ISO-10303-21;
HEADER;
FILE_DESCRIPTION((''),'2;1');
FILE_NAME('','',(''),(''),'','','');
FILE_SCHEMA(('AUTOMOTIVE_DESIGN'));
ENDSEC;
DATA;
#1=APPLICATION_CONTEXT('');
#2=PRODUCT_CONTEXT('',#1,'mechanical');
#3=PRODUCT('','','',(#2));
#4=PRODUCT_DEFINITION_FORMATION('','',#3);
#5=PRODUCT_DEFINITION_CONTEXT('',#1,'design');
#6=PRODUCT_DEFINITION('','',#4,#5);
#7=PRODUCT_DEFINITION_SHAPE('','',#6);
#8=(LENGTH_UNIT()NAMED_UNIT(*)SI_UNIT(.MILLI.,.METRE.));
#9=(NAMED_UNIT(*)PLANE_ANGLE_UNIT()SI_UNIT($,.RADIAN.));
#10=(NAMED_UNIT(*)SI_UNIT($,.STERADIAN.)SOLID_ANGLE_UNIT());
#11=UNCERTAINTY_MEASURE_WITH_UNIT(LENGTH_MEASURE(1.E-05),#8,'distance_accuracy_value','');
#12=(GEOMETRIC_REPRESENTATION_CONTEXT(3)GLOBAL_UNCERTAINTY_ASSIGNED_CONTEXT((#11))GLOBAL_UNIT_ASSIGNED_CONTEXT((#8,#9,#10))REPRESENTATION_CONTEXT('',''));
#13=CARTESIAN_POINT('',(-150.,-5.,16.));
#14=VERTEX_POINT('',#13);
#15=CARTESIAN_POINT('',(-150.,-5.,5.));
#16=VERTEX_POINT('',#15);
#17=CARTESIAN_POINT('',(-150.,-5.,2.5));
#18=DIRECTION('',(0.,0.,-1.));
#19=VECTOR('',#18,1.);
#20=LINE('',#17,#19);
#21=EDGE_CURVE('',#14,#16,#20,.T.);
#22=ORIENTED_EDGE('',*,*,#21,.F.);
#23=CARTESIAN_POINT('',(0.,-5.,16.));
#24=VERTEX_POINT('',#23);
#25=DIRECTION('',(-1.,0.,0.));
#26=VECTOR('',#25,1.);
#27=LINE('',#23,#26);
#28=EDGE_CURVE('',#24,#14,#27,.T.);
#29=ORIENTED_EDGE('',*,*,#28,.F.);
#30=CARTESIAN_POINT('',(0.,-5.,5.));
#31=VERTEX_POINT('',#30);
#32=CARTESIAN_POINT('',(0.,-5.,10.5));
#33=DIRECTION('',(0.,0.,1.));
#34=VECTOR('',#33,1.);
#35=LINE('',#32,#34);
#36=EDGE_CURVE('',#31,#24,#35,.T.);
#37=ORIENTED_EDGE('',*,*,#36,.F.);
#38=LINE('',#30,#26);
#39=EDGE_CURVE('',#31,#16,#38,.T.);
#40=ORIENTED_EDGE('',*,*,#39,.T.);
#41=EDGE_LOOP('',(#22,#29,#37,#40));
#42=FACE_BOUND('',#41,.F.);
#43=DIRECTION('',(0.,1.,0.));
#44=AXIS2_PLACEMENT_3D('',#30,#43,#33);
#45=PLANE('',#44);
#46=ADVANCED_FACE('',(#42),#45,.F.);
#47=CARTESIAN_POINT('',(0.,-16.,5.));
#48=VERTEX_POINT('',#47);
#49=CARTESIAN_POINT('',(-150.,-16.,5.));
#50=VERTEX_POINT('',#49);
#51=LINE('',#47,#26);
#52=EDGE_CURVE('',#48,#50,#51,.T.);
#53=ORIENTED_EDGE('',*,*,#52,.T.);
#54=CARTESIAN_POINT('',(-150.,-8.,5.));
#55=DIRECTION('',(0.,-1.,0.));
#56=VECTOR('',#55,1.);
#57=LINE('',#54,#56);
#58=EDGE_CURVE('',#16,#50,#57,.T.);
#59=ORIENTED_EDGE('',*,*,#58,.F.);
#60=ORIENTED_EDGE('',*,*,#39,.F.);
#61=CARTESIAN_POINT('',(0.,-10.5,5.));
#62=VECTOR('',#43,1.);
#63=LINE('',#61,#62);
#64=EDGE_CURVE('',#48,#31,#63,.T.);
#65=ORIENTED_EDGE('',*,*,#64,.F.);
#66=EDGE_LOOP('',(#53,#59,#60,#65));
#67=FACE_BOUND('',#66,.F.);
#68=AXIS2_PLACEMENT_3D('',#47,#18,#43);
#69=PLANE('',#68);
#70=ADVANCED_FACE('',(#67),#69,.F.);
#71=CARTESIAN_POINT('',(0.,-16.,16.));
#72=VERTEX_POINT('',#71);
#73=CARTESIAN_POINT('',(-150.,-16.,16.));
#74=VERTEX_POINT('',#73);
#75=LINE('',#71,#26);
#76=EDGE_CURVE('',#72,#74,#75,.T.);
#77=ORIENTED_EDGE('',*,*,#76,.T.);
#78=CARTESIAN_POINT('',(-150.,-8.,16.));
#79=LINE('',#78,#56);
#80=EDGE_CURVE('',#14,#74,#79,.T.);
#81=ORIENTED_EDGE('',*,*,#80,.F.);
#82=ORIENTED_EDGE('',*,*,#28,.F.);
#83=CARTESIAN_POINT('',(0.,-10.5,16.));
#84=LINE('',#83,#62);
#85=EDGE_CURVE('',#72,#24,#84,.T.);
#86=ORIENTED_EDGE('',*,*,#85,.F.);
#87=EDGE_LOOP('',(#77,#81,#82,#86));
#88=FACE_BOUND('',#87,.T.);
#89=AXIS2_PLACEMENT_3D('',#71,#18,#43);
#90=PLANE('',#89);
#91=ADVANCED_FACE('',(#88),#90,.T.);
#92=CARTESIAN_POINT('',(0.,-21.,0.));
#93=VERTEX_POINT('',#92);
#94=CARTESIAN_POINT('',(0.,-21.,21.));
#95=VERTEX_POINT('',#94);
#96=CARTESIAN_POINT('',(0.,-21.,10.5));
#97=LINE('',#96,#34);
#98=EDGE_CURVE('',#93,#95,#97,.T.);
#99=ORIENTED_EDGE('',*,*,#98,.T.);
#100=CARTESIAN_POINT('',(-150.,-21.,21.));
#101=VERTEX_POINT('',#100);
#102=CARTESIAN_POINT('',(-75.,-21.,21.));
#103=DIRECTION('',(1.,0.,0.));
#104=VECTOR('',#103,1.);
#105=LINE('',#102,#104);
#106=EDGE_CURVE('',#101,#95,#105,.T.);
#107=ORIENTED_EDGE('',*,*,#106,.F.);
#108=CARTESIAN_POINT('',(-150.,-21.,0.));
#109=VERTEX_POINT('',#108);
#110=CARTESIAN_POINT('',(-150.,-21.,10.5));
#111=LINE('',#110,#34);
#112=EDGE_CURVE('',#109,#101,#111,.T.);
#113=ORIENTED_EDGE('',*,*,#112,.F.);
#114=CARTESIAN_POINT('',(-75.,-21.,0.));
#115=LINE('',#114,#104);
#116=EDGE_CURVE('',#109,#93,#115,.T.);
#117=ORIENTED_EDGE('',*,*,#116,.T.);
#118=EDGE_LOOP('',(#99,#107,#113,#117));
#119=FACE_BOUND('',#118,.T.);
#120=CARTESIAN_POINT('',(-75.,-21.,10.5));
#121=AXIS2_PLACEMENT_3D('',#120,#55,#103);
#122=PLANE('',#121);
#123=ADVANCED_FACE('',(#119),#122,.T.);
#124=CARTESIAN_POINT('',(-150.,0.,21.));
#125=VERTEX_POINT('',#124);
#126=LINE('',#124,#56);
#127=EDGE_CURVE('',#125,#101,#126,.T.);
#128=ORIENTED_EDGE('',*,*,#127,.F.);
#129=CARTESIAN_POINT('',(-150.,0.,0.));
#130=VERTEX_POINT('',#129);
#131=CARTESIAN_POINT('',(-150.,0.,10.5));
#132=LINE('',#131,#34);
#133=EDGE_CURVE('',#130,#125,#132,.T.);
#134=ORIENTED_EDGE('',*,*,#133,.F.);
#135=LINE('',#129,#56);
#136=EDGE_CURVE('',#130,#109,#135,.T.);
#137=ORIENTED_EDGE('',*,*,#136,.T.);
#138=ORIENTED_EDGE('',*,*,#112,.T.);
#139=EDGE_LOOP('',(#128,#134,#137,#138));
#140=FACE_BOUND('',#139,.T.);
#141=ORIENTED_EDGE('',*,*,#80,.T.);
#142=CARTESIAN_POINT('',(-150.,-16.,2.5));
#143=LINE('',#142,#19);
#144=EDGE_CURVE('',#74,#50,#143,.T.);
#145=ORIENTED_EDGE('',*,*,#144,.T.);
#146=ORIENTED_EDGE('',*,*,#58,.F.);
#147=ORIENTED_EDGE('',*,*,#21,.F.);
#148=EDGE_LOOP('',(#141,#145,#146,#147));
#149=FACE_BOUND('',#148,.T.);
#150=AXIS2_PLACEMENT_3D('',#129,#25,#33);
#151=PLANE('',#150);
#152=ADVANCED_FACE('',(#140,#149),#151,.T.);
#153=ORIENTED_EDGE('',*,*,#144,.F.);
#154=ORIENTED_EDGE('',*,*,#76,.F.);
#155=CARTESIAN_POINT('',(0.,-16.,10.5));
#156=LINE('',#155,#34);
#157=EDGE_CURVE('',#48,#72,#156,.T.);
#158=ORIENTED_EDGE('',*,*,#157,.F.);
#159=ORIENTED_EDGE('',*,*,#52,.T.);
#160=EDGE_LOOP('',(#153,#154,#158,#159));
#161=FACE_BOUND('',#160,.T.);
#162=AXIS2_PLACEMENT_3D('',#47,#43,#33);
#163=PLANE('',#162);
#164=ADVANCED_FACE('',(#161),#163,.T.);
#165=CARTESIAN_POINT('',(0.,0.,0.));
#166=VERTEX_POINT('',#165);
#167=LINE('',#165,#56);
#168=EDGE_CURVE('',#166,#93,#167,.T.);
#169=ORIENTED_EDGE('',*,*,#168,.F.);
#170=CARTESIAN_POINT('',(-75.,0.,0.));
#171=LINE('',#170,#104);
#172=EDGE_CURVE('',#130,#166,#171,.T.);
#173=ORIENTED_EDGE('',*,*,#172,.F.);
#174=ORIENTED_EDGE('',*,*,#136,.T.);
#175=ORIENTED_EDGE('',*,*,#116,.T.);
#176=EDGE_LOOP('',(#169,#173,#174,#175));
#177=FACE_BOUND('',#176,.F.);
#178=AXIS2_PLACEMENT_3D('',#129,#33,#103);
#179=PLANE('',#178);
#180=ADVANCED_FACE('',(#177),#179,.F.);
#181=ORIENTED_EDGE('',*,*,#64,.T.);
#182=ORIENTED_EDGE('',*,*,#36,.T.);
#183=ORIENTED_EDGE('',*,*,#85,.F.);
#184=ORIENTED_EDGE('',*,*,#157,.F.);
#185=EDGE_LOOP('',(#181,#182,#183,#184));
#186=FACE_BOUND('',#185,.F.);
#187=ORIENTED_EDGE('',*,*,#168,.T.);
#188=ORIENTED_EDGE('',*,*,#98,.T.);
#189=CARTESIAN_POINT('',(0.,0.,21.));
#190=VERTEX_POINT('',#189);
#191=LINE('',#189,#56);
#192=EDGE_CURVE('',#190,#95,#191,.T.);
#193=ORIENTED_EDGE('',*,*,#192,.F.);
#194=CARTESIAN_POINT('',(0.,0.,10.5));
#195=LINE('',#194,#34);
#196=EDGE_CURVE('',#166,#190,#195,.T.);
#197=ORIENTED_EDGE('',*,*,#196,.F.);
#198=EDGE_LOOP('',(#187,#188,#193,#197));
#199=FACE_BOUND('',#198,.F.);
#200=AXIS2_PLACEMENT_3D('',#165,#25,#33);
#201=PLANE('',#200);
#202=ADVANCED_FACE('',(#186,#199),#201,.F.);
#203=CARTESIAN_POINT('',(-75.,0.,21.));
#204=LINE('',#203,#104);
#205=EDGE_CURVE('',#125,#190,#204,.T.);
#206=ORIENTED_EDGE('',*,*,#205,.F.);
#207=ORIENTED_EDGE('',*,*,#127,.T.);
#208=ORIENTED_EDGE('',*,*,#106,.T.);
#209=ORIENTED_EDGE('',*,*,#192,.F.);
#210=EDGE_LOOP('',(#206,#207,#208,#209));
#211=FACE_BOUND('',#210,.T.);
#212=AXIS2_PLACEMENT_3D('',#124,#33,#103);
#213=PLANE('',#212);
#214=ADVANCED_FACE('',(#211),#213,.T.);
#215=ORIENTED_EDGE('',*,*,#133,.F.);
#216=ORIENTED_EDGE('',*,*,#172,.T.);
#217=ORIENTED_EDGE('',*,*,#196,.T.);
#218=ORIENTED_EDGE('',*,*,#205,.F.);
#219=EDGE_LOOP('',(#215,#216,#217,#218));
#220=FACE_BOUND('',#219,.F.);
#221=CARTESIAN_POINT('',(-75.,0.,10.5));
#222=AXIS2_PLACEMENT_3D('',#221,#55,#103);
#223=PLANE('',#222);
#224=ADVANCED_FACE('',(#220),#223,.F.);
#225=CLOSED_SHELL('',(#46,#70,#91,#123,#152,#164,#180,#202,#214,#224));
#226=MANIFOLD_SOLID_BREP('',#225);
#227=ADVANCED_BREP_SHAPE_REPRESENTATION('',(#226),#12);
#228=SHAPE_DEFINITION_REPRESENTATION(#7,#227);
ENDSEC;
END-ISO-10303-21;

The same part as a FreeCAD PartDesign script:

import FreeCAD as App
import Part
import Sketcher
Q = App.Units.Quantity


def add_polygon(sketch, points):
    """Adds a closed chain of lines whose ends are joined by coincident constraints."""
    first, n = sketch.GeometryCount, len(points)
    for a, b in zip(points, points[1:] + points[:1]):
        sketch.addGeometry(Part.LineSegment(App.Vector(*a, 0), App.Vector(*b, 0)), False)
    for i in range(n):
        sketch.addConstraint(Sketcher.Constraint("Coincident", first + i, 2, first + (i + 1) % n, 1))

doc = App.newDocument("Part")
body = doc.addObject("PartDesign::Body", "Body")

# Sketch on XZ plane
sketch1 = doc.addObject("Sketcher::SketchObject", "Sketch")
body.addObject(sketch1)
sketch1.AttachmentSupport = (doc.XZ_Plane, [""])
sketch1.MapMode = "FlatFace"
add_polygon(sketch1, [(-150, 21), (-150, 0), (0, 0), (0, 21)])  # lines 0-3
sketch1.addConstraint(Sketcher.Constraint("Vertical", 0))
sketch1.addConstraint(Sketcher.Constraint("Horizontal", 1))
sketch1.addConstraint(Sketcher.Constraint("Vertical", 2))
sketch1.addConstraint(Sketcher.Constraint("Horizontal", 3))
sketch1.addConstraint(Sketcher.Constraint("Coincident", 1, 2, -1, 1))
sketch1.addConstraint(Sketcher.Constraint("DistanceX", 1, 1, 1, 2, Q("150 mm")))
sketch1.addConstraint(Sketcher.Constraint("DistanceY", 0, 2, 0, 1, Q("21 mm")))
pad1 = doc.addObject("PartDesign::Pad", "Pad")
body.addObject(pad1)
pad1.Profile = sketch1
pad1.Length = 21

# Sketch on YZ plane
sketch2 = doc.addObject("Sketcher::SketchObject", "Sketch001")
body.addObject(sketch2)
sketch2.AttachmentSupport = (doc.YZ_Plane, [""])
sketch2.MapMode = "FlatFace"
add_polygon(sketch2, [(-16, 16), (-16, 5), (-5, 5), (-5, 16)])  # lines 0-3
sketch2.addConstraint(Sketcher.Constraint("Vertical", 0))
sketch2.addConstraint(Sketcher.Constraint("Horizontal", 1))
sketch2.addConstraint(Sketcher.Constraint("Vertical", 2))
sketch2.addConstraint(Sketcher.Constraint("Horizontal", 3))
sketch2.addConstraint(Sketcher.Constraint("Equal", 3, 0))
sketch2.addConstraint(Sketcher.Constraint("DistanceX", 1, 1, 1, 2, Q("11 mm")))
sketch2.addConstraint(Sketcher.Constraint("DistanceX", 0, 2, -1, 1, Q("16 mm")))
sketch2.addConstraint(Sketcher.Constraint("DistanceY", -1, 1, 0, 2, Q("5 mm")))
pocket1 = doc.addObject("PartDesign::Pocket", "Pocket")
body.addObject(pocket1)
pocket1.Profile = sketch2
pocket1.Length = 200

doc.recompute()
